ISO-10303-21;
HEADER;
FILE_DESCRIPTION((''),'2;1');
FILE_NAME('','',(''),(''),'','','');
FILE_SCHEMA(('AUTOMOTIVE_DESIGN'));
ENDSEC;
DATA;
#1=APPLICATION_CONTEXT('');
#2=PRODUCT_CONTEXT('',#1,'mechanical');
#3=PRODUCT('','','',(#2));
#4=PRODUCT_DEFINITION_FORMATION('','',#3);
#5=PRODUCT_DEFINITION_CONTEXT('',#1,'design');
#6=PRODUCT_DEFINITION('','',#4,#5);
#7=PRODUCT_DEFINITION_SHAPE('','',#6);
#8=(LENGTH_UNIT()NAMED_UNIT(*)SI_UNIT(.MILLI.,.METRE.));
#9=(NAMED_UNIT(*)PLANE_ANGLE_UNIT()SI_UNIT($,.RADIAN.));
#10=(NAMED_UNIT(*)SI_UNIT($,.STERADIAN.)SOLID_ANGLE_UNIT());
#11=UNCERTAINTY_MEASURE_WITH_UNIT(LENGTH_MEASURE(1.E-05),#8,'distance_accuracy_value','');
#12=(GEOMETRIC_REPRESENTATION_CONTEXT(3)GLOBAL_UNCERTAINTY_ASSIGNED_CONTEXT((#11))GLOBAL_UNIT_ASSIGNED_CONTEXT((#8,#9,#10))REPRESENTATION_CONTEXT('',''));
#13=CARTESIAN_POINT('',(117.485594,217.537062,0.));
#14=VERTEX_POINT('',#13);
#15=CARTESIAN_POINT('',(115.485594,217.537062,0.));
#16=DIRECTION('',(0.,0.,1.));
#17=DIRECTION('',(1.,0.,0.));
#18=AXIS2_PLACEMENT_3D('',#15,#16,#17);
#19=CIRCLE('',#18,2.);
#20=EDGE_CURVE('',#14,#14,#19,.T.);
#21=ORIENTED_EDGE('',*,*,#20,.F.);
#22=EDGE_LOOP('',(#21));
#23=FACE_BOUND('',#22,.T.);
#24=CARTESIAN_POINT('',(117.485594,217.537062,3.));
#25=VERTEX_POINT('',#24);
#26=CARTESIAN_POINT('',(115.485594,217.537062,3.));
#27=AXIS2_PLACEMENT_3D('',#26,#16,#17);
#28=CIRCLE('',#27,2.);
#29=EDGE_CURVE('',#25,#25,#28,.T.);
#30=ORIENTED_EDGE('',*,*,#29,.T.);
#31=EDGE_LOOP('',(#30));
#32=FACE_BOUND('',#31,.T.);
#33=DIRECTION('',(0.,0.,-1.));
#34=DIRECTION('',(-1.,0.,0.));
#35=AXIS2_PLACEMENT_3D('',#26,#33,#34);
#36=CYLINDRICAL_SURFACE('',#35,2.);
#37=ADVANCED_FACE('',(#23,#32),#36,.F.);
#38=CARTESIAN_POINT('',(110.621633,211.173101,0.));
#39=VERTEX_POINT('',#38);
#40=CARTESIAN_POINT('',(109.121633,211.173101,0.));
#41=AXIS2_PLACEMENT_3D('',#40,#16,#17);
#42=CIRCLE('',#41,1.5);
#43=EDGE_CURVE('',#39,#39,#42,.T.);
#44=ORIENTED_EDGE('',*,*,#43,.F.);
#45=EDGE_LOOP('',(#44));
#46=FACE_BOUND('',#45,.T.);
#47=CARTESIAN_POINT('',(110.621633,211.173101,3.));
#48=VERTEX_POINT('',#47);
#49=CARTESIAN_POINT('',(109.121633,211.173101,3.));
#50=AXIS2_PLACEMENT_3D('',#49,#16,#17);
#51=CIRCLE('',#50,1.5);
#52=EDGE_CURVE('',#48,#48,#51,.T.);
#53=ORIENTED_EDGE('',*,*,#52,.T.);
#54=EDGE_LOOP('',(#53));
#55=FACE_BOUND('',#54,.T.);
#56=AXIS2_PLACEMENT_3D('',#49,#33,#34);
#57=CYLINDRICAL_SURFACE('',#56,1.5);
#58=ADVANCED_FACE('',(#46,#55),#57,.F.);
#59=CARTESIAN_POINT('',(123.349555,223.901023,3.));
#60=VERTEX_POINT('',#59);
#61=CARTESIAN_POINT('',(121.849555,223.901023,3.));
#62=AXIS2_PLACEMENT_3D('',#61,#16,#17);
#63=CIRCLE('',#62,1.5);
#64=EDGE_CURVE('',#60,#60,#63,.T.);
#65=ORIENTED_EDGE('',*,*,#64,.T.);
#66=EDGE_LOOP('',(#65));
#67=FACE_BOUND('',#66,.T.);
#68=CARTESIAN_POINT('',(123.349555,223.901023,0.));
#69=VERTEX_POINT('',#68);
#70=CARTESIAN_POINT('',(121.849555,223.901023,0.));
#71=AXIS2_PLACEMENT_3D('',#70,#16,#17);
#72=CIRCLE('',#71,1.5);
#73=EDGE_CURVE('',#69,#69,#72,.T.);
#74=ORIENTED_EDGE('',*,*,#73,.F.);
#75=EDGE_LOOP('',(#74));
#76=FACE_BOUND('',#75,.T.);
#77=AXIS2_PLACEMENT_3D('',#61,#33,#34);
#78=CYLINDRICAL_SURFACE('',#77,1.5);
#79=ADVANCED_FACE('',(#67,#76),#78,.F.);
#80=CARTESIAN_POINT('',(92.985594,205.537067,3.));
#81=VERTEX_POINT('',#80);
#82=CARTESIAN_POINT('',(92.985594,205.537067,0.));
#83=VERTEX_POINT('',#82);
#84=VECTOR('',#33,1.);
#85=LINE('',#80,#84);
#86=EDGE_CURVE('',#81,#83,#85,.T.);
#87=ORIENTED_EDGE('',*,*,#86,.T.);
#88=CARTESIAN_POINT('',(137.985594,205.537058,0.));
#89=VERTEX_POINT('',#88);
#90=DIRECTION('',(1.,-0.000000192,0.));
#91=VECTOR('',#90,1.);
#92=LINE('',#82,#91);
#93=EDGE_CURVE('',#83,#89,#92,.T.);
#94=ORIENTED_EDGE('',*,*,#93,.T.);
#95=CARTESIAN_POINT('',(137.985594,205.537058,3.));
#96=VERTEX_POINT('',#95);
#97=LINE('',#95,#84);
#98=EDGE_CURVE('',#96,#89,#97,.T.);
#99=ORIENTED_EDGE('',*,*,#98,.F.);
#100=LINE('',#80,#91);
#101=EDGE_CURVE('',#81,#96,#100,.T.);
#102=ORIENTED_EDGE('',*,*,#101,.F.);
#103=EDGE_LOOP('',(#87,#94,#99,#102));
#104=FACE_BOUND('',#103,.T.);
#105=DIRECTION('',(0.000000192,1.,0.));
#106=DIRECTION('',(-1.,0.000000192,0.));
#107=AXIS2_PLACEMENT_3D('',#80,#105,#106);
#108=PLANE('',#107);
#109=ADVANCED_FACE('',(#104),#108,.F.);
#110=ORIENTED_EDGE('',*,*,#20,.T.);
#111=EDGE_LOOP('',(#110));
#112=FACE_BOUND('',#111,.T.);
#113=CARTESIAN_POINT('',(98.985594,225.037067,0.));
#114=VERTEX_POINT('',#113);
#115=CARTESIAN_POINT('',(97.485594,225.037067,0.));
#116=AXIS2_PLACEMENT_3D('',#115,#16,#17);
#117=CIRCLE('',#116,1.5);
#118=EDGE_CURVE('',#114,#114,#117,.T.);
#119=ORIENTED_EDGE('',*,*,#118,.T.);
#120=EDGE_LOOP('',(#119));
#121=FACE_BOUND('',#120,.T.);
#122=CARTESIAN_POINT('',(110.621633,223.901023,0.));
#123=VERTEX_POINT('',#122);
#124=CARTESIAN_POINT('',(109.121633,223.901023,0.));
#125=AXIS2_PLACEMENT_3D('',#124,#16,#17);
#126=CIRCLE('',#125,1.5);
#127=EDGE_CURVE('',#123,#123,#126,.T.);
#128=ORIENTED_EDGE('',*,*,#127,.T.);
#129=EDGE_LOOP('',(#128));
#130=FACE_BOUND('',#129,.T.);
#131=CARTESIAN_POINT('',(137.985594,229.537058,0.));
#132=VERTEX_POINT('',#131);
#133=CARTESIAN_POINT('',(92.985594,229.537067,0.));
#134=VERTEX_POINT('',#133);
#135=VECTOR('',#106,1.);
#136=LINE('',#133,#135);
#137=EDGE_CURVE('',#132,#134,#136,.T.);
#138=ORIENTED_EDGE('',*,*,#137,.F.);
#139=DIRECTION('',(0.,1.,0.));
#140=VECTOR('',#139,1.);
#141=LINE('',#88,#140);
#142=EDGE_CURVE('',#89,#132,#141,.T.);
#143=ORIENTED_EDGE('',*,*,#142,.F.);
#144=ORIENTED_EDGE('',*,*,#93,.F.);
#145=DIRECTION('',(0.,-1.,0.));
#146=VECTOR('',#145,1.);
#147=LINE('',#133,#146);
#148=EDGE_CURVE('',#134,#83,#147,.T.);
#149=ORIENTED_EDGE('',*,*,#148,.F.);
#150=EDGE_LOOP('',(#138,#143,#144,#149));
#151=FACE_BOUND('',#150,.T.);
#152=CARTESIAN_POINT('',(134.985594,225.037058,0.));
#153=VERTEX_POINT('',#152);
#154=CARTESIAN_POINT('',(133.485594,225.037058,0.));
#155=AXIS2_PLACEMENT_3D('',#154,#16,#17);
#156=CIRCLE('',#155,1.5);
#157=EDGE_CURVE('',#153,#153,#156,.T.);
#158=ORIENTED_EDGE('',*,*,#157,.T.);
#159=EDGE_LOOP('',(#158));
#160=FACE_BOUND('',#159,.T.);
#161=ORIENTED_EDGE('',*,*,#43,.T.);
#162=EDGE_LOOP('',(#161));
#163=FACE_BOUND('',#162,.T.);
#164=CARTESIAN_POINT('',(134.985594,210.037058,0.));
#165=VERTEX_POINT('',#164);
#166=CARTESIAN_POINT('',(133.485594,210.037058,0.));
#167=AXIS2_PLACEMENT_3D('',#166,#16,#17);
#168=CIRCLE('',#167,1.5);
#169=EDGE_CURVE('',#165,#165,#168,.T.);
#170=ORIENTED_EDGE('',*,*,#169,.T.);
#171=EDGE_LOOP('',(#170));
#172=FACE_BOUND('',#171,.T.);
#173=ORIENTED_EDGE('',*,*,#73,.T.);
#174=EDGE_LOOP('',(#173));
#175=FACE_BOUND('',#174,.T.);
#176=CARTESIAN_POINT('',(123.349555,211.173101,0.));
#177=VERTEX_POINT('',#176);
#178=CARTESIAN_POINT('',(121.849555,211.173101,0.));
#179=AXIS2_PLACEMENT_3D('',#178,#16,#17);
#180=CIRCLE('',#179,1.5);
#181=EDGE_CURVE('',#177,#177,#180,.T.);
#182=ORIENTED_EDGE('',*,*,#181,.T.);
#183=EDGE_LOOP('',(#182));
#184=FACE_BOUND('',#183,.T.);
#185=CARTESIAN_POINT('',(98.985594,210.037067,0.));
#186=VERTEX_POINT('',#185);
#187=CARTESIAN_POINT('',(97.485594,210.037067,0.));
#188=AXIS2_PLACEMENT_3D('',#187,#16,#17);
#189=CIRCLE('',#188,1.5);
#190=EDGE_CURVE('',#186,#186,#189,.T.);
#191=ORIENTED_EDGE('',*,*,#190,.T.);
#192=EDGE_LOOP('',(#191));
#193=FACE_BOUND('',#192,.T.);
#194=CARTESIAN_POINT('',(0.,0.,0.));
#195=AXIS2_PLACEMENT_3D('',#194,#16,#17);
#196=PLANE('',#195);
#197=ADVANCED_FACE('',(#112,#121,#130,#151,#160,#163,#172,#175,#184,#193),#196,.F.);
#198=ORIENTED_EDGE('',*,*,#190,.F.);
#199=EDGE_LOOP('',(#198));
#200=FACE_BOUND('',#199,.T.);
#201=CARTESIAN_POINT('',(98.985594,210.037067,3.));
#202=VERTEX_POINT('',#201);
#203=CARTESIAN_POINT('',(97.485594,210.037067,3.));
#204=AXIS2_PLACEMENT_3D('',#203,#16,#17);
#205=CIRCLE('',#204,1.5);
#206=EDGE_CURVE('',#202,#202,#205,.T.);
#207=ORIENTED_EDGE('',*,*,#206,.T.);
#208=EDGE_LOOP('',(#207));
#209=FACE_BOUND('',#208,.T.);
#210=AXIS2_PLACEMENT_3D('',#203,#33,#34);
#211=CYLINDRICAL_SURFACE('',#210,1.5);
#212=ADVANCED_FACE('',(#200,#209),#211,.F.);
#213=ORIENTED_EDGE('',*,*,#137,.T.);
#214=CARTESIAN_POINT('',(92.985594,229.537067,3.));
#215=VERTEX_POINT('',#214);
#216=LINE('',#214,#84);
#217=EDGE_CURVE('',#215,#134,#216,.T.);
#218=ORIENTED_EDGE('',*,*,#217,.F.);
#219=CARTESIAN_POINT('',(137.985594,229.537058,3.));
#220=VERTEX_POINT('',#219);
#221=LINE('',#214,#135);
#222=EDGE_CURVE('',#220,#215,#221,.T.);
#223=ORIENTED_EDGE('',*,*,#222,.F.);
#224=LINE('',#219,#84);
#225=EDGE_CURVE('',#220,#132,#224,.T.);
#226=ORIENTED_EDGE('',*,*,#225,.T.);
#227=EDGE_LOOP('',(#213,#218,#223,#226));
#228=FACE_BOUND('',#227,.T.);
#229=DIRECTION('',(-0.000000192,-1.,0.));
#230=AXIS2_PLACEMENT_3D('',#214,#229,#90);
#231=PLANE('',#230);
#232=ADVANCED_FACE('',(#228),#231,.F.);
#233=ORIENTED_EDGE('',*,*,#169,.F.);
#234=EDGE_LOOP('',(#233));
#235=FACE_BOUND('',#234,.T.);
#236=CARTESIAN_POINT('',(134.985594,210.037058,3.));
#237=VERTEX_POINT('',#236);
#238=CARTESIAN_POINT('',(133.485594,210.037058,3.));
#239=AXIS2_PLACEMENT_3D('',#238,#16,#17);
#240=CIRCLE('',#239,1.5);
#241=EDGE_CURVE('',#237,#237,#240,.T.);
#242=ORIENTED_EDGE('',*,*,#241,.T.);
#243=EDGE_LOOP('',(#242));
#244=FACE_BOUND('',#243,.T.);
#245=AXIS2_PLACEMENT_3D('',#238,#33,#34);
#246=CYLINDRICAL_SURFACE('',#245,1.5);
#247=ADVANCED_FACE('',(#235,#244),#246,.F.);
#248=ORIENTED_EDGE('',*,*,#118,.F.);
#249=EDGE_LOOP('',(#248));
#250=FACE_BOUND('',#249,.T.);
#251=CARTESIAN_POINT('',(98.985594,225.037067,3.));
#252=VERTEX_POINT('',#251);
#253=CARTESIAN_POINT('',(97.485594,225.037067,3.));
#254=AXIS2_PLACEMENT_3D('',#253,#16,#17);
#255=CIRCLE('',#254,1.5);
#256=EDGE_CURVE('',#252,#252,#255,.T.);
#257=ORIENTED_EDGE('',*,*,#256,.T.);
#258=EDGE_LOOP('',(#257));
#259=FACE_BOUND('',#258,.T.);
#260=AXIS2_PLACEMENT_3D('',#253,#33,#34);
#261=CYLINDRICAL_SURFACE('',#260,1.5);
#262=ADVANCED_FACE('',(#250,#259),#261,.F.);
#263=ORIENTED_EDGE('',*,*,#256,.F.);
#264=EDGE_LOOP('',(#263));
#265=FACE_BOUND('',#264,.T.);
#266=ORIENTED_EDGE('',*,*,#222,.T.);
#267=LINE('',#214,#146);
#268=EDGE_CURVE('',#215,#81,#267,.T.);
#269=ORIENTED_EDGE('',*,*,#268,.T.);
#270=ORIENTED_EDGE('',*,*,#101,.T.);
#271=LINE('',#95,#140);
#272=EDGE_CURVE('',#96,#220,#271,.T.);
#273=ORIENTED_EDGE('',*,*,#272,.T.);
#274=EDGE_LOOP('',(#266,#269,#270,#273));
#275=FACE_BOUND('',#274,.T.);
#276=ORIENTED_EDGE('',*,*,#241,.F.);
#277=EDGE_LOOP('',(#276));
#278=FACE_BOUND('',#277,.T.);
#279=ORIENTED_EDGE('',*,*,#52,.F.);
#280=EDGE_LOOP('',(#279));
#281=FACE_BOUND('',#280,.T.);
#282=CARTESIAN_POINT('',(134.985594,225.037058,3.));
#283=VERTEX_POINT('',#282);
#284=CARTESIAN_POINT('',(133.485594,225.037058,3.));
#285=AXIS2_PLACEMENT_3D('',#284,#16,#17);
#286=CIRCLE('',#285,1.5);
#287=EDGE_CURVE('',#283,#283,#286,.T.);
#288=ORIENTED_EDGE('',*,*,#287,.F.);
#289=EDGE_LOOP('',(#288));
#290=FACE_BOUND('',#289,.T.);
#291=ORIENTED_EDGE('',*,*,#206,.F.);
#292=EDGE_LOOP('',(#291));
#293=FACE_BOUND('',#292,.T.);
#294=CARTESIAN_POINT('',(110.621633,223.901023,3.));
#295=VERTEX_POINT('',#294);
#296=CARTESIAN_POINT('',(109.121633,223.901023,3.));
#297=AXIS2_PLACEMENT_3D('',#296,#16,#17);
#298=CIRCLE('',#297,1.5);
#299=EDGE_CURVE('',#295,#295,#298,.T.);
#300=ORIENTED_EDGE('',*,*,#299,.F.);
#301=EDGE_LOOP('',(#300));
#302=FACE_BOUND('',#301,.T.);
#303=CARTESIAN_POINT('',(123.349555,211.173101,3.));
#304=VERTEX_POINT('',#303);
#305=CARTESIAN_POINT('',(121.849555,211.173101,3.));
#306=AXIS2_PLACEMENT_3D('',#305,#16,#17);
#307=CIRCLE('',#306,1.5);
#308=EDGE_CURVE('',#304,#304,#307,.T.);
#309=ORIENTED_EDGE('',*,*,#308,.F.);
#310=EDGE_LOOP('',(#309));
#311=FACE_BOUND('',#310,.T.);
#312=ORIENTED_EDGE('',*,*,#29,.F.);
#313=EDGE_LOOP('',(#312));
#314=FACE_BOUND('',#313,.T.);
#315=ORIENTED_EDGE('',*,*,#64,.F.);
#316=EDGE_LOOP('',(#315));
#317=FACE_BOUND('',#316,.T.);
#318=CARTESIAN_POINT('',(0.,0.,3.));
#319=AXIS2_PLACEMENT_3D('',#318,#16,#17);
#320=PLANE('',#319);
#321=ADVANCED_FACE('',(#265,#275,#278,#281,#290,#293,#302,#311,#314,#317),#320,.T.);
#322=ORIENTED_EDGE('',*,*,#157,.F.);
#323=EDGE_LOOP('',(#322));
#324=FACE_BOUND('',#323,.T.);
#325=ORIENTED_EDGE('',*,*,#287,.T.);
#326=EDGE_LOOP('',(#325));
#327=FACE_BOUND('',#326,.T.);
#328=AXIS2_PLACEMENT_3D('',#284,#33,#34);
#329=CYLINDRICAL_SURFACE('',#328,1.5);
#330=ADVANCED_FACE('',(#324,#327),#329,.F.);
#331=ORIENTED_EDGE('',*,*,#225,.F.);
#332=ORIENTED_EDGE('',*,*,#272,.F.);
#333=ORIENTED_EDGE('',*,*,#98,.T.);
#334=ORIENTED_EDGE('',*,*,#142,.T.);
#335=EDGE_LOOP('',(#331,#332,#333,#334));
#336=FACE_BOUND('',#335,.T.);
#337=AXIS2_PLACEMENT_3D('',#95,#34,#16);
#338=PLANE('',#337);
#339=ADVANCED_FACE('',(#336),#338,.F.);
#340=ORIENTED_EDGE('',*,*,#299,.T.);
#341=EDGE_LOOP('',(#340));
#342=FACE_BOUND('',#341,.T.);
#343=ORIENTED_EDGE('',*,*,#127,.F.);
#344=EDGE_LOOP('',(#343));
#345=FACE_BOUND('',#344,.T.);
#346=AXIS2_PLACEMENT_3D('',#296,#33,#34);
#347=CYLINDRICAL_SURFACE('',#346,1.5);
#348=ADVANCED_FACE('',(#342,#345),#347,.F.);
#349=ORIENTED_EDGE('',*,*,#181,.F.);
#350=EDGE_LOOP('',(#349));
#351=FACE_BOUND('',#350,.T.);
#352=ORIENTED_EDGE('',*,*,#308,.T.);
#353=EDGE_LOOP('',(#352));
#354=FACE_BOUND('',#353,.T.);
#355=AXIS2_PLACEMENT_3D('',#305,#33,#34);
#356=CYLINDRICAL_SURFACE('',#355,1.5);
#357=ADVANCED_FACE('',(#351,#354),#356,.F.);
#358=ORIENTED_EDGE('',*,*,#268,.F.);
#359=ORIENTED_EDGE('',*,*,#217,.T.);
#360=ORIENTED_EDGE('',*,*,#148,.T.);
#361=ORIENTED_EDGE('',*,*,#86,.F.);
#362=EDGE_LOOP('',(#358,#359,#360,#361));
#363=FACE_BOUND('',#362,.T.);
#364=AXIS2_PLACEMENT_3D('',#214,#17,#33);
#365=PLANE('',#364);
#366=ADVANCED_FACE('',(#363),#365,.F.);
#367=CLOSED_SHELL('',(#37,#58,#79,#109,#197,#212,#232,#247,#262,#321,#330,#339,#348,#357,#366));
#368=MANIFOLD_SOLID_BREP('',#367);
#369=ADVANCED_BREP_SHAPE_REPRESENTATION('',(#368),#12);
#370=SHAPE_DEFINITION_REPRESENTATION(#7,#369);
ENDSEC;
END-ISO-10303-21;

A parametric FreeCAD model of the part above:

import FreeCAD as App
import Part
import Sketcher
Q = App.Units.Quantity

doc = App.newDocument("Part")
params = doc.addObject("Spreadsheet::Sheet", "Params")
for row, (alias, value) in enumerate([
    ("sketch1_diameter", "3 mm"),
    ("sketch1_diameter2", "4 mm"),
    ("sketch1_height", "24 mm"),
    ("sketch1_length", "45 mm"),
    ("pad1_length", "3 mm"),
], start=1):
    params.set(f"A{row}", alias)
    params.set(f"B{row}", "=" + value)
    params.setAlias(f"B{row}", alias)

body = doc.addObject("PartDesign::Body", "Body")

sketch1 = body.newObject("Sketcher::SketchObject", "Sketch")
sketch1.AttachmentSupport = (doc.getObject("XY_Plane"), [""])
sketch1.MapMode = "FlatFace"
sketch1.addGeometry([
    Part.LineSegment(App.Vector(138, 229.5, 0), App.Vector(93, 229.5, 0)),
    Part.LineSegment(App.Vector(93, 229.5, 0), App.Vector(93, 205.5, 0)),
    Part.LineSegment(App.Vector(93, 205.5, 0), App.Vector(138, 205.5, 0)),
    Part.LineSegment(App.Vector(138, 205.5, 0), App.Vector(138, 229.5, 0)),
    Part.Circle(App.Vector(133.5, 210, 0), App.Vector(0, 0, 1), 1.5),
    Part.Circle(App.Vector(121.8, 211.2, 0), App.Vector(0, 0, 1), 1.5),
    Part.Circle(App.Vector(109.1, 211.2, 0), App.Vector(0, 0, 1), 1.5),
    Part.Circle(App.Vector(97.5, 210, 0), App.Vector(0, 0, 1), 1.5),
    Part.Circle(App.Vector(133.5, 225, 0), App.Vector(0, 0, 1), 1.5),
    Part.Circle(App.Vector(121.8, 223.9, 0), App.Vector(0, 0, 1), 1.5),
    Part.Circle(App.Vector(115.5, 217.5, 0), App.Vector(0, 0, 1), 2),
    Part.Circle(App.Vector(109.1, 223.9, 0), App.Vector(0, 0, 1), 1.5),
    Part.Circle(App.Vector(97.5, 225, 0), App.Vector(0, 0, 1), 1.5),
], False)
sketch1.addConstraint([
    Sketcher.Constraint("Coincident", 0, 2, 1, 1),
    Sketcher.Constraint("Coincident", 1, 2, 2, 1),
    Sketcher.Constraint("Coincident", 2, 2, 3, 1),
    Sketcher.Constraint("Coincident", 3, 2, 0, 1),
    Sketcher.Constraint("Vertical", 1),
    Sketcher.Constraint("Vertical", 3),
    Sketcher.Constraint("Equal", 4, 5),
    Sketcher.Constraint("Equal", 5, 6),
    Sketcher.Constraint("Equal", 6, 7),
    Sketcher.Constraint("Equal", 7, 8),
    Sketcher.Constraint("Equal", 8, 9),
    Sketcher.Constraint("Equal", 9, 11),
    Sketcher.Constraint("Equal", 11, 12),
    Sketcher.Constraint("Parallel", 0, 2),
    Sketcher.Constraint("Horizontal", 5, 3, 6, 3),
    Sketcher.Constraint("Horizontal", 9, 3, 11, 3),
    Sketcher.Constraint("Vertical", 4, 3, 8, 3),
    Sketcher.Constraint("Vertical", 5, 3, 9, 3),
    Sketcher.Constraint("Vertical", 6, 3, 11, 3),
    Sketcher.Constraint("Vertical", 7, 3, 12, 3),
    Sketcher.Constraint("Diameter", 4, 3.0),
    Sketcher.Constraint("Diameter", 10, 4.0),
    Sketcher.Constraint("DistanceY", 1, 2, 1, 1, 24.0),
    Sketcher.Constraint("Angle", 0, Q("179.999989 deg")),
    Sketcher.Constraint("Distance", 0, 45.0),
    Sketcher.Constraint("DistanceX", 7, 3, 4, 3, 36.0),
    Sketcher.Constraint("DistanceY", 4, 3, 8, 3, 15.0),
    Sketcher.Constraint("DistanceX", 7, 3, 10, 3, 18.0),
    Sketcher.Constraint("DistanceY", 7, 3, 12, 3, 15.0),
    Sketcher.Constraint("DistanceX", 0, 2, 12, 3, 4.5),
    Sketcher.Constraint("DistanceY", 12, 3, 0, 2, 4.5),
    Sketcher.Constraint("DistanceY", 2, 2, 4, 3, 4.5),
    Sketcher.Constraint("DistanceY", -1, 1, 5, 3, 211.173101),
    Sketcher.Constraint("DistanceX", 5, 3, 4, 3, 11.636039),
    Sketcher.Constraint("DistanceX", 6, 3, 4, 3, 24.363961),
    Sketcher.Constraint("DistanceY", 6, 3, 10, 3, 6.363961),
    Sketcher.Constraint("DistanceY", 10, 3, 9, 3, 6.363961),
    Sketcher.Constraint("DistanceX", -1, 1, 4, 3, 133.485594),
    Sketcher.Constraint("DistanceY", -1, 1, 4, 3, 210.037058),
])
sketch1.setExpression("Constraints[20]", "Params.sketch1_diameter")
sketch1.setExpression("Constraints[21]", "Params.sketch1_diameter2")
sketch1.setExpression("Constraints[22]", "Params.sketch1_height")
sketch1.setExpression("Constraints[24]", "Params.sketch1_length")
pad1 = body.newObject("PartDesign::Pad", "Pad")
pad1.Profile = sketch1
pad1.setExpression("Length", "Params.pad1_length")

doc.recompute()
